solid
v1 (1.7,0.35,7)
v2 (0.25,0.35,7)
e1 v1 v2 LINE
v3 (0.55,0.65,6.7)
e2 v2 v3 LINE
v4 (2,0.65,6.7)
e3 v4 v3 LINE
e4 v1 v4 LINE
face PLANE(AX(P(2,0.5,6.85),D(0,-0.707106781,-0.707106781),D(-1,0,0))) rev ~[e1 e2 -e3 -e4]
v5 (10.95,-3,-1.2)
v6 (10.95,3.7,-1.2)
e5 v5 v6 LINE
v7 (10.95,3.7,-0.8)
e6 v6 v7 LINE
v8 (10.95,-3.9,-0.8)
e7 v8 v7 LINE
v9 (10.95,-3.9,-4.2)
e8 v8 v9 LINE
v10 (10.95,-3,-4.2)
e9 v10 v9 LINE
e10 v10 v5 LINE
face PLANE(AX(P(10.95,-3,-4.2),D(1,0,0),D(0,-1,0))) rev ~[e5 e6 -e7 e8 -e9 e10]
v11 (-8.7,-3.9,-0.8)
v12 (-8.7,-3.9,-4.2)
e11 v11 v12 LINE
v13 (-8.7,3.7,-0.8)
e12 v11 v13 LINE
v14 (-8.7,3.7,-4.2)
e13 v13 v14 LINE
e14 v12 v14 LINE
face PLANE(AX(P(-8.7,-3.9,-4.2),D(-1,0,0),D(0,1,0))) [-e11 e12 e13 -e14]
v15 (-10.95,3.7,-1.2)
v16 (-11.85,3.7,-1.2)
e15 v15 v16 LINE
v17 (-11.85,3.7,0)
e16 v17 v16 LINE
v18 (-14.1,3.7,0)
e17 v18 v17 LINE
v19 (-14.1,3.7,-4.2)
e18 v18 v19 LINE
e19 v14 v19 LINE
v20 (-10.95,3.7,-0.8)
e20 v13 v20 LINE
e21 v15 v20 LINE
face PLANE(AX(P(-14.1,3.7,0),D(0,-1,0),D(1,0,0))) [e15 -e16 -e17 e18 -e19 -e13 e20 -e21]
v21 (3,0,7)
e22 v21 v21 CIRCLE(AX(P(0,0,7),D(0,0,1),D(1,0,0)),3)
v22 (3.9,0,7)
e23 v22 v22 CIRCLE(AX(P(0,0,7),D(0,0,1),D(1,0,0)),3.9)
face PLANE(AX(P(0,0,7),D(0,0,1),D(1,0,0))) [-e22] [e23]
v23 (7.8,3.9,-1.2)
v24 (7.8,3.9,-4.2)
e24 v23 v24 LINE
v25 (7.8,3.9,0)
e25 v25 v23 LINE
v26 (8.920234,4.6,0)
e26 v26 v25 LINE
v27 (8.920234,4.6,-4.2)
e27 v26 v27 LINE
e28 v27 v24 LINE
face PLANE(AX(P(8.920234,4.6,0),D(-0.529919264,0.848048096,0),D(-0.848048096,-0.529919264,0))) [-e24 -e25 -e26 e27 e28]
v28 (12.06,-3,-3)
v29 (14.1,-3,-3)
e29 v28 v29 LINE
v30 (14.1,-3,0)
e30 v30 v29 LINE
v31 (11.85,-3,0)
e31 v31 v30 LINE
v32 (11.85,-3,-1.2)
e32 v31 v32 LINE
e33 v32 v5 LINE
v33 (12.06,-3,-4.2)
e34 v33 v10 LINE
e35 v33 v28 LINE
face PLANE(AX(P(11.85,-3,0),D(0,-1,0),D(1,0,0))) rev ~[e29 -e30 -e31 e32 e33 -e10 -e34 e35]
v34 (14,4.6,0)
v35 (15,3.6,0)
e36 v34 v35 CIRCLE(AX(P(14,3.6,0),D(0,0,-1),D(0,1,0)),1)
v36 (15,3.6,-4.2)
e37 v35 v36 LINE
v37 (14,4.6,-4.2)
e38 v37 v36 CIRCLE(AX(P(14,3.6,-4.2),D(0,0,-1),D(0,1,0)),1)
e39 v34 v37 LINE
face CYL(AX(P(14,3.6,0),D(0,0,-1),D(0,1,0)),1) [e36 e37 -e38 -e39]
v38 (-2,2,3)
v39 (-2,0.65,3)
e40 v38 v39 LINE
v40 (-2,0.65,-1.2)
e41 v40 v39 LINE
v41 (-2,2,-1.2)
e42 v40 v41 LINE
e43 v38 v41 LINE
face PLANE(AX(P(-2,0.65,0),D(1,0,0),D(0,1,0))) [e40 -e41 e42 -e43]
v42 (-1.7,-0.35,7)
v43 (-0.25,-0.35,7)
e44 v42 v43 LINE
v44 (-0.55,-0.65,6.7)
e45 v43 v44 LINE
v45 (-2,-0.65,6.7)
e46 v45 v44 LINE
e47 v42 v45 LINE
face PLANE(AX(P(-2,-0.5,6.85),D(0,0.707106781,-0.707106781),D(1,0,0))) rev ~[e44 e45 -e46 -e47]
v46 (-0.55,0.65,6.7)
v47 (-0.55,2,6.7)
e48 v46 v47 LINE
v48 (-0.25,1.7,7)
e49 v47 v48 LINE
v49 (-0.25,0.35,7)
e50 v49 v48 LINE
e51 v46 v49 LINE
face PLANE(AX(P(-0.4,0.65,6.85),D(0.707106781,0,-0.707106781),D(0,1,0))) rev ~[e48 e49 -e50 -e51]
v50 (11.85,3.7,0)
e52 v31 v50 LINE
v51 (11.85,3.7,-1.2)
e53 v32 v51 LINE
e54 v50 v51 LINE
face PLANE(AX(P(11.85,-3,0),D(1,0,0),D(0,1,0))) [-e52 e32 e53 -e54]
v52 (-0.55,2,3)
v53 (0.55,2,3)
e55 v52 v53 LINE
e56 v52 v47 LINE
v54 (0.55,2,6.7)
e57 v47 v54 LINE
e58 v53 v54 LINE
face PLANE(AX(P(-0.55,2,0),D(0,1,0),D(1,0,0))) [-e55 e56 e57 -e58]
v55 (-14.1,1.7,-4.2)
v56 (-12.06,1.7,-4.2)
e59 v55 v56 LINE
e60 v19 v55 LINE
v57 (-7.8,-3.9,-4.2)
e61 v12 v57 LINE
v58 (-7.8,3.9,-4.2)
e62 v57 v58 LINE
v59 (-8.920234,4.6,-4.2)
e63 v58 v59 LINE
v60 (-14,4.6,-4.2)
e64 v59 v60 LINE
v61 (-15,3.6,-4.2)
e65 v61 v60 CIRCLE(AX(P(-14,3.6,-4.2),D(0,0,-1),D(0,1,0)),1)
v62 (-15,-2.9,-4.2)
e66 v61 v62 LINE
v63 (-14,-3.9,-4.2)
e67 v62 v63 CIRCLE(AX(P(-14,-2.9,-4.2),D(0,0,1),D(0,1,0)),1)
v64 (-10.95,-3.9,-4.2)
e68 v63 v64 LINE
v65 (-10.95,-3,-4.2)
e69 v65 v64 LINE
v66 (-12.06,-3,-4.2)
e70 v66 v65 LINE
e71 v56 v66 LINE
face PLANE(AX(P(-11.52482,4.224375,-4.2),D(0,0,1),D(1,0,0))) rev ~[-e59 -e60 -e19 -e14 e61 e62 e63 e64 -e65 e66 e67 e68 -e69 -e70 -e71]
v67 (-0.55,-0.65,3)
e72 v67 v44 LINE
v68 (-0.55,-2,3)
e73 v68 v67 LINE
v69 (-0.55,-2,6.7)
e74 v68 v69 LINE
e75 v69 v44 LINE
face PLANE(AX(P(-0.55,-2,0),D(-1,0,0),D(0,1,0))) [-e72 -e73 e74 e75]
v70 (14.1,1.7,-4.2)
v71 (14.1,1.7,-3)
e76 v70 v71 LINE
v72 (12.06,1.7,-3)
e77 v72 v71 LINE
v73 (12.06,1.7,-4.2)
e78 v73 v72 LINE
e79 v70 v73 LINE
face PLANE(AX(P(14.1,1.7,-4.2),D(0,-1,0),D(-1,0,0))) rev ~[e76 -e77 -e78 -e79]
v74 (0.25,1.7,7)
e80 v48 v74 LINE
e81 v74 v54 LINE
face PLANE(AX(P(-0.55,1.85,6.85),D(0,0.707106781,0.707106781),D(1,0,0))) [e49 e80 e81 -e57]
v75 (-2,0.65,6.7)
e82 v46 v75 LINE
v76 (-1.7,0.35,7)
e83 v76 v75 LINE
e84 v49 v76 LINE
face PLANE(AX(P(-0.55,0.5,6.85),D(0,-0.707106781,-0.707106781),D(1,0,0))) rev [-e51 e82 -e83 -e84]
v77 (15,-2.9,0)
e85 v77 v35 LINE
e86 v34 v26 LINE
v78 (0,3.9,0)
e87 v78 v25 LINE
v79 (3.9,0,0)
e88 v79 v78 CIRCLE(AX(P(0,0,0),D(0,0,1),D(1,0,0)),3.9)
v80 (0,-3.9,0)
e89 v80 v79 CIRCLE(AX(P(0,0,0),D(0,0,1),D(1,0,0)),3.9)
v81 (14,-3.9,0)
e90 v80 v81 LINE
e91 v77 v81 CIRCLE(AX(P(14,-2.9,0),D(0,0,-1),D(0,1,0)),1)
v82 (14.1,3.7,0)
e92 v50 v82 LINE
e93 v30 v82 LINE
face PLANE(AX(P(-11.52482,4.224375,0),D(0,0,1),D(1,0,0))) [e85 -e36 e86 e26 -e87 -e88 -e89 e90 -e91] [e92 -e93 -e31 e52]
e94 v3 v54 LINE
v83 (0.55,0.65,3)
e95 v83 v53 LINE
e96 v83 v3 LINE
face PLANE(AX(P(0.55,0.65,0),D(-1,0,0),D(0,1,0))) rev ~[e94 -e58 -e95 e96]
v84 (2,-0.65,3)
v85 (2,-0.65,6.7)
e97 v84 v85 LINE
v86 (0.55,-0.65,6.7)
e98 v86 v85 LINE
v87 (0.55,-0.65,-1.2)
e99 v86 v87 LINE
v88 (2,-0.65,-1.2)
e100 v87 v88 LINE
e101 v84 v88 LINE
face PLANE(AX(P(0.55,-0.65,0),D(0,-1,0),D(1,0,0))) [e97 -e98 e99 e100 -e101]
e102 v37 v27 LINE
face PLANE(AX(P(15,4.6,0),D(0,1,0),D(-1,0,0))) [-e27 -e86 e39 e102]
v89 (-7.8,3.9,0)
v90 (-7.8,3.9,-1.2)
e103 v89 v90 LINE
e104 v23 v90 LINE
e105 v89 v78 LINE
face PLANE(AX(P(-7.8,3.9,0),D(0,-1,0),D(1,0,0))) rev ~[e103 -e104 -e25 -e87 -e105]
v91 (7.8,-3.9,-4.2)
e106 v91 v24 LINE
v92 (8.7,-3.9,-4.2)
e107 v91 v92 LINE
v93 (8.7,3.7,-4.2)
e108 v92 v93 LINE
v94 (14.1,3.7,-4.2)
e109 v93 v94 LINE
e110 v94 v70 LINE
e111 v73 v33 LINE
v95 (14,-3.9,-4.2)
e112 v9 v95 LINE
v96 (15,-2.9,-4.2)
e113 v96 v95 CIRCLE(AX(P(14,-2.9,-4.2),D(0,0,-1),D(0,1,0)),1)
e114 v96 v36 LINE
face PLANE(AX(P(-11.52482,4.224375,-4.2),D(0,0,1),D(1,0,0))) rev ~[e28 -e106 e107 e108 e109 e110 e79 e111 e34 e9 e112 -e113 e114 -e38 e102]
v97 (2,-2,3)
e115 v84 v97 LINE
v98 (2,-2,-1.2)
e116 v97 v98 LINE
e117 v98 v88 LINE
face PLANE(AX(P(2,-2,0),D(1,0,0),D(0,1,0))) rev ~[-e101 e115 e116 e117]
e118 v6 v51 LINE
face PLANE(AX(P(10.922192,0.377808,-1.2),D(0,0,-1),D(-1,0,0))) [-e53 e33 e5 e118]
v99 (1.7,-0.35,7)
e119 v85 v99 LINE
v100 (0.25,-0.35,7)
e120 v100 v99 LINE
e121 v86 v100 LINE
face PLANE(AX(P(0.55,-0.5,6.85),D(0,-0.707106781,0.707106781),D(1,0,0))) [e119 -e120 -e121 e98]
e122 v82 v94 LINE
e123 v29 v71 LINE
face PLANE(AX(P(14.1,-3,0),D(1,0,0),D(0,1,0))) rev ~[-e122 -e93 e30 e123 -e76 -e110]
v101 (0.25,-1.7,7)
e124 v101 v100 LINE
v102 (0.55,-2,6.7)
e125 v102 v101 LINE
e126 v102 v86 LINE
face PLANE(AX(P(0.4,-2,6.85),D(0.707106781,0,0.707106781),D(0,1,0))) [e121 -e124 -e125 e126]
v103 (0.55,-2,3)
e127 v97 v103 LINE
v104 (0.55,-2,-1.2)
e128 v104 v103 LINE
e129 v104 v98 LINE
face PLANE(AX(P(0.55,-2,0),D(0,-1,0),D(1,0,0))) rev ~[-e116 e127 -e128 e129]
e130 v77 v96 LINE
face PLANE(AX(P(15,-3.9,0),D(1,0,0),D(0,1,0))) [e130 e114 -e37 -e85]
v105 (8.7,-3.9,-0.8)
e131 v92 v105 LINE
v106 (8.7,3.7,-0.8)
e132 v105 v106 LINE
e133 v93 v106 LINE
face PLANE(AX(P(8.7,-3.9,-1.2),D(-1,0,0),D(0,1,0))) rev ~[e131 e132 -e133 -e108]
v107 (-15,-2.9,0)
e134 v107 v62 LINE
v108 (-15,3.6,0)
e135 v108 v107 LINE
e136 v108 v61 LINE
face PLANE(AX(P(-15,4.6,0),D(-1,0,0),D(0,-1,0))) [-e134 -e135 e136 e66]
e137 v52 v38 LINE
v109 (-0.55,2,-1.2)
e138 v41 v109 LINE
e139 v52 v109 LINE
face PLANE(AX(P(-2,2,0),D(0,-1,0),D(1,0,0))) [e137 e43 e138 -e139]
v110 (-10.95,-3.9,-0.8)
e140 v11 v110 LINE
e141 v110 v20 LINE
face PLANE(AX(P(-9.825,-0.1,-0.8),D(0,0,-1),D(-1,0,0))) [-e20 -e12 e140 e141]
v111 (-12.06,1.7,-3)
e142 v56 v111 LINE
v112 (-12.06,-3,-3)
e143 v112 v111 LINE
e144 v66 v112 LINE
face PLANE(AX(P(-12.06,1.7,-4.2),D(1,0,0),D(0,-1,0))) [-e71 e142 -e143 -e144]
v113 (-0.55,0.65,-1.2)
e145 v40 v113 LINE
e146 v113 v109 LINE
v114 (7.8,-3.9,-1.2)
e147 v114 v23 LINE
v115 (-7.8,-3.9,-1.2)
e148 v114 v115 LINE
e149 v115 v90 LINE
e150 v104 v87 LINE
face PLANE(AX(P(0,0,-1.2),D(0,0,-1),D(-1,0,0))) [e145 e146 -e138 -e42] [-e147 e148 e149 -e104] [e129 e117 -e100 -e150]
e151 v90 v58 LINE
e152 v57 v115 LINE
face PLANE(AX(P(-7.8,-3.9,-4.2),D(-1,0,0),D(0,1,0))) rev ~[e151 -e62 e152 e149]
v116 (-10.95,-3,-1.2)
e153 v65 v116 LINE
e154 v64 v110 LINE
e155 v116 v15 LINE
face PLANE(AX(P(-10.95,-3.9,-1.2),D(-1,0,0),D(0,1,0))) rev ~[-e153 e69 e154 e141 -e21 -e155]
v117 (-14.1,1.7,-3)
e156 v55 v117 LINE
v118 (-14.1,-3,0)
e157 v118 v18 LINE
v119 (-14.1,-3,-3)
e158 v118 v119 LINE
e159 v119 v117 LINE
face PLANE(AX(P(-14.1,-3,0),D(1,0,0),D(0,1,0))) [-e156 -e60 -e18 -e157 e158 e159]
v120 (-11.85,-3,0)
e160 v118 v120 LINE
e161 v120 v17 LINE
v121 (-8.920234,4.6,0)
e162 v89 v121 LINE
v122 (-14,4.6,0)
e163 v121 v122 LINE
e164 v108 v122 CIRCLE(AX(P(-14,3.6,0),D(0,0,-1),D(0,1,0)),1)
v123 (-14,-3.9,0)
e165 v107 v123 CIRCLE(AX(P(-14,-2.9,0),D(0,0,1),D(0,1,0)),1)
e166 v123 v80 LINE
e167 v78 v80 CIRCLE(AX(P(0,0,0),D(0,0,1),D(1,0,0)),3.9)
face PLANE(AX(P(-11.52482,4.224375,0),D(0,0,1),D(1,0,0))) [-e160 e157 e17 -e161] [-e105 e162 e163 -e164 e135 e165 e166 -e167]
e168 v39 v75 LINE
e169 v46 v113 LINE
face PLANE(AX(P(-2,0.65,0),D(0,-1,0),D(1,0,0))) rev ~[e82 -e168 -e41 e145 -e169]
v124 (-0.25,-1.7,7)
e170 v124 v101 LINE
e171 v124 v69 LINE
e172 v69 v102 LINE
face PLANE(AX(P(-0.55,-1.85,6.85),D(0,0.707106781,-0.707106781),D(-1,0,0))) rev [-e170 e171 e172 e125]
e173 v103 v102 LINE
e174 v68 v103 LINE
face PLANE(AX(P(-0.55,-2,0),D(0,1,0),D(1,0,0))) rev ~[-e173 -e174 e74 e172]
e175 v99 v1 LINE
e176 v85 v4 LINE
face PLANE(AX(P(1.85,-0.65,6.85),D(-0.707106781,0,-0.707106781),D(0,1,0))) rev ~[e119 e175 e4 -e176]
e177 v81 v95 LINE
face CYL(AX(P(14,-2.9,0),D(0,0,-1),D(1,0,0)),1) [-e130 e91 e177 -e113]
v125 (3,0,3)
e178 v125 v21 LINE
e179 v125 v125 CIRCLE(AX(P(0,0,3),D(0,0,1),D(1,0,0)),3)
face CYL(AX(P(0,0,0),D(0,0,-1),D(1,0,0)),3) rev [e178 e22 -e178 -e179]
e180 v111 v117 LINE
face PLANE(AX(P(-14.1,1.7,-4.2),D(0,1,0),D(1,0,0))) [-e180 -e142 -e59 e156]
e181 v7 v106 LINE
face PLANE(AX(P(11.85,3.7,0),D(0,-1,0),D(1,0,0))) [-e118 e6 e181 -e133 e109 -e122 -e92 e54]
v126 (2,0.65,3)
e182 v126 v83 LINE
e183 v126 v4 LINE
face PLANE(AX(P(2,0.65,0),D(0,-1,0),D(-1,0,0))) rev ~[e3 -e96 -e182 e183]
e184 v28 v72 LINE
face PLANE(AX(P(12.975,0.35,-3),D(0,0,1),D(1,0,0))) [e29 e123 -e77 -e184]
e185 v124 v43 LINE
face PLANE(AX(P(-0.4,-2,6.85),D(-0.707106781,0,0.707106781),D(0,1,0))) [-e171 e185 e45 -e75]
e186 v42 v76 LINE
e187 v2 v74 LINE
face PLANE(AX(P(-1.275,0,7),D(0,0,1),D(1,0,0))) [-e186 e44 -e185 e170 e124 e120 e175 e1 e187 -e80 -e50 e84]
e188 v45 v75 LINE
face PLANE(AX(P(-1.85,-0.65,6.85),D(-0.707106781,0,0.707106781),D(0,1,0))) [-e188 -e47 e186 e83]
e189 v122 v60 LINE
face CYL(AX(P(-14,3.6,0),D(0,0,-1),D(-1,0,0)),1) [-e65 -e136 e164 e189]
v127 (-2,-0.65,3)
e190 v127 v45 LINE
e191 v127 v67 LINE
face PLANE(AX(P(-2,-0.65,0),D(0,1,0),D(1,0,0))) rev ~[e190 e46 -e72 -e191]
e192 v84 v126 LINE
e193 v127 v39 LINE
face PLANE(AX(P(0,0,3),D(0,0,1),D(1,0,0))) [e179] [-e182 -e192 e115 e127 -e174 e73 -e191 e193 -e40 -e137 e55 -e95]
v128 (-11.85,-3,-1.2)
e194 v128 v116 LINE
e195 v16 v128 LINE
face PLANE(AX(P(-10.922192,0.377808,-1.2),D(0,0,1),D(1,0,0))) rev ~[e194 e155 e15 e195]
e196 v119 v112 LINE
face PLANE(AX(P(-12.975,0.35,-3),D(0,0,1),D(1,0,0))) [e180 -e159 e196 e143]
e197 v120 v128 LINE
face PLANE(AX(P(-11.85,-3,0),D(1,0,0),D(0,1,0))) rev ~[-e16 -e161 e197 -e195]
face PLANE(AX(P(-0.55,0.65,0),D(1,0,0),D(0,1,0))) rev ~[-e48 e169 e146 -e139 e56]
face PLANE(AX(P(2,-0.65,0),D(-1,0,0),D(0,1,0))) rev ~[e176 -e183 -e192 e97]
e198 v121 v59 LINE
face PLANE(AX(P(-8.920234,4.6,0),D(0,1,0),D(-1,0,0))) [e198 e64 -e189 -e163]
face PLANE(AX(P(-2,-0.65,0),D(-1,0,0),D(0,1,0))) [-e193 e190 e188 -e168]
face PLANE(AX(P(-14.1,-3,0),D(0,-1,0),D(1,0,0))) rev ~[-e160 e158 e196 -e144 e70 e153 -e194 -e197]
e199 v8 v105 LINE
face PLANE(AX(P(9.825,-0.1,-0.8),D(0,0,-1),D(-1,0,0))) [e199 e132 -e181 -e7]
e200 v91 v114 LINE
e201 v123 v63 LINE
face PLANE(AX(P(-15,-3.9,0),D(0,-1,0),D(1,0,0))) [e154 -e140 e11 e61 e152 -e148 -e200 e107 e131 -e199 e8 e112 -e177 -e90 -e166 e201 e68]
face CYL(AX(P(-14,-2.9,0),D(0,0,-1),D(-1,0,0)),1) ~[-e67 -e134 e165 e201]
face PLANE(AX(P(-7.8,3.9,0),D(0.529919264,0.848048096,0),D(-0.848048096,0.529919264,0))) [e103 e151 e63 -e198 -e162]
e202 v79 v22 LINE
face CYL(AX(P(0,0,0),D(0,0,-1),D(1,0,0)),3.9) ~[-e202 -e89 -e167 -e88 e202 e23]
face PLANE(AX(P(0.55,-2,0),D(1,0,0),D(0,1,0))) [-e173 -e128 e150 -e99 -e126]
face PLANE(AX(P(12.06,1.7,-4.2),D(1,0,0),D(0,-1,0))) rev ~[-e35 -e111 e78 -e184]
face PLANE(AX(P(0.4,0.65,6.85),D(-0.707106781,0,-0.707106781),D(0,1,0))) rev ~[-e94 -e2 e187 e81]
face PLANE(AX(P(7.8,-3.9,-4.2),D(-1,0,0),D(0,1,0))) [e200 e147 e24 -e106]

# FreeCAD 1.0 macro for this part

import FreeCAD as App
import Part
import Sketcher
from FreeCAD import Vector
Q = App.Units.Quantity


def edges_at(feature, points):
    """Names of the edges that pass closest to the given points."""
    edges = feature.Shape.Edges
    near = lambda p: min(range(len(edges)), key=lambda i: edges[i].distToShape(Part.Vertex(*p))[0])
    return sorted({f"Edge{near(p) + 1}" for p in points})

doc = App.newDocument("Part")
params = doc.addObject("Spreadsheet::Sheet", "Params")
for row, (alias, value) in enumerate([
    ("sketch1_diameter", "6 mm"),
    ("sketch1_diameter2", "7.8 mm"),
    ("sketch1_width", "1.1 mm"),
    ("sketch1_height", "1.3 mm"),
    ("pad1_length", "7 mm"),
    ("sketch2_diameter", "6 mm"),
    ("pad2_length", "3 mm"),
    ("sketch3_width", "30 mm"),
    ("sketch3_width2", "15.6 mm"),
    ("sketch3_height", "8.5 mm"),
    ("pad3_length", "4.2 mm"),
    ("sketch4_width", "1.45 mm"),
    ("sketch4_height", "1.35 mm"),
    ("sketch5_width", "15.6 mm"),
    ("sketch5_height", "7.8 mm"),
    ("pocket2_length", "3 mm"),
    ("sketch6_height", "6.7 mm"),
    ("sketch6_width", "2.25 mm"),
    ("pocket3_length", "3 mm"),
    ("sketch7_height", "2 mm"),
    ("sketch7_width", "5.4 mm"),
    ("sketch7_height2", "4.7 mm"),
    ("sketch7_height3", "7.6 mm"),
    ("sketch7_width2", "1.11 mm"),
    ("pocket4_length", "3 mm"),
    ("sketch8_height", "7.6 mm"),
    ("sketch8_width", "2.25 mm"),
    ("pocket5_length", "0.4 mm"),
    ("fillet_radius", "1 mm"),
    ("chamfer_size", "0.3 mm"),
], start=1):
    params.set(f"A{row}", alias)
    params.set(f"B{row}", "=" + value)
    params.setAlias(f"B{row}", alias)

body = doc.addObject("PartDesign::Body", "Body")
body.AllowCompound = True

sketch1 = body.newObject("Sketcher::SketchObject", "Sketch")
sketch1.AttachmentSupport = (doc.getObject("XY_Plane"), [""])
sketch1.MapMode = "FlatFace"
sketch1.addGeometry(Part.Circle(Vector(0, 0, 0), Vector(0, 0, 1), 3.9), False)
sketch1.addGeometry(Part.Circle(Vector(0, 0, 0), Vector(0, 0, 1), 3), False)
sketch1.addGeometry(Part.LineSegment(Vector(-2, 0.7, 0), Vector(-2, -0.7, 0)), False)
sketch1.addGeometry(Part.LineSegment(Vector(-2, -0.7, 0), Vector(-0.6, -0.7, 0)), False)
sketch1.addGeometry(Part.LineSegment(Vector(-0.6, -0.7, 0), Vector(-0.6, -2, 0)), False)
sketch1.addGeometry(Part.LineSegment(Vector(-0.6, -2, 0), Vector(0.6, -2, 0)), False)
sketch1.addGeometry(Part.LineSegment(Vector(0.6, -2, 0), Vector(0.6, -0.7, 0)), False)
sketch1.addGeometry(Part.LineSegment(Vector(0.6, -0.7, 0), Vector(2, -0.7, 0)), False)
sketch1.addGeometry(Part.LineSegment(Vector(2, -0.7, 0), Vector(2, 0.7, 0)), False)
sketch1.addGeometry(Part.LineSegment(Vector(2, 0.7, 0), Vector(0.6, 0.7, 0)), False)
sketch1.addGeometry(Part.LineSegment(Vector(0.6, 0.7, 0), Vector(0.6, 2, 0)), False)
sketch1.addGeometry(Part.LineSegment(Vector(0.6, 2, 0), Vector(-0.6, 2, 0)), False)
sketch1.addGeometry(Part.LineSegment(Vector(-0.6, 2, 0), Vector(-0.6, 0.7, 0)), False)
sketch1.addGeometry(Part.LineSegment(Vector(-0.6, 0.7, 0), Vector(-2, 0.7, 0)), False)
sketch1.addConstraint(Sketcher.Constraint("Coincident", 2, 2, 3, 1))
sketch1.addConstraint(Sketcher.Constraint("Coincident", 3, 2, 4, 1))
sketch1.addConstraint(Sketcher.Constraint("Coincident", 4, 2, 5, 1))
sketch1.addConstraint(Sketcher.Constraint("Coincident", 5, 2, 6, 1))
sketch1.addConstraint(Sketcher.Constraint("Coincident", 6, 2, 7, 1))
sketch1.addConstraint(Sketcher.Constraint("Coincident", 7, 2, 8, 1))
sketch1.addConstraint(Sketcher.Constraint("Coincident", 8, 2, 9, 1))
sketch1.addConstraint(Sketcher.Constraint("Coincident", 9, 2, 10, 1))
sketch1.addConstraint(Sketcher.Constraint("Coincident", 10, 2, 11, 1))
sketch1.addConstraint(Sketcher.Constraint("Coincident", 11, 2, 12, 1))
sketch1.addConstraint(Sketcher.Constraint("Coincident", 12, 2, 13, 1))
sketch1.addConstraint(Sketcher.Constraint("Coincident", 13, 2, 2, 1))
sketch1.addConstraint(Sketcher.Constraint("Vertical", 2))
sketch1.addConstraint(Sketcher.Constraint("Horizontal", 3))
sketch1.addConstraint(Sketcher.Constraint("Vertical", 4))
sketch1.addConstraint(Sketcher.Constraint("Horizontal", 5))
sketch1.addConstraint(Sketcher.Constraint("Vertical", 6))
sketch1.addConstraint(Sketcher.Constraint("Horizontal", 7))
sketch1.addConstraint(Sketcher.Constraint("Vertical", 8))
sketch1.addConstraint(Sketcher.Constraint("Horizontal", 9))
sketch1.addConstraint(Sketcher.Constraint("Vertical", 10))
sketch1.addConstraint(Sketcher.Constraint("Horizontal", 11))
sketch1.addConstraint(Sketcher.Constraint("Vertical", 12))
sketch1.addConstraint(Sketcher.Constraint("Horizontal", 13))
sketch1.addConstraint(Sketcher.Constraint("Coincident", 0, 3, -1, 1))
sketch1.addConstraint(Sketcher.Constraint("Coincident", 1, 3, -1, 1))
sketch1.addConstraint(Sketcher.Constraint("Symmetric", 2, 2, 8, 2, -1, 1))
sketch1.addConstraint(Sketcher.Constraint("Symmetric", 4, 2, 10, 2, -1, 1))
sketch1.addConstraint(Sketcher.Constraint("Symmetric", 6, 2, 12, 2, -1, 1))
sketch1.addConstraint(Sketcher.Constraint("Symmetric", 3, 2, 6, 2, -2))
sketch1.addConstraint(Sketcher.Constraint("Diameter", 1, Q("6 mm")))
sketch1.addConstraint(Sketcher.Constraint("Diameter", 0, Q("7.8 mm")))
sketch1.addConstraint(Sketcher.Constraint("DistanceX", 5, 1, 5, 2, Q("1.1 mm")))
sketch1.addConstraint(Sketcher.Constraint("DistanceY", 2, 2, 2, 1, Q("1.3 mm")))
sketch1.addConstraint(Sketcher.Constraint("DistanceX", 2, 2, -1, 1, Q("2 mm")))
sketch1.addConstraint(Sketcher.Constraint("DistanceY", 4, 2, -1, 1, Q("2 mm")))
sketch1.setExpression("Constraints[30]", "Params.sketch1_diameter")
sketch1.setExpression("Constraints[31]", "Params.sketch1_diameter2")
sketch1.setExpression("Constraints[32]", "Params.sketch1_width")
sketch1.setExpression("Constraints[33]", "Params.sketch1_height")
pad1 = body.newObject("PartDesign::Pad", "Pad")
pad1.Profile = sketch1
pad1.setExpression("Length", "Params.pad1_length")

sketch2 = body.newObject("Sketcher::SketchObject", "Sketch001")
sketch2.AttachmentSupport = (doc.getObject("XY_Plane"), [""])
sketch2.MapMode = "FlatFace"
sketch2.addGeometry(Part.Circle(Vector(0, 0, 0), Vector(0, 0, 1), 3), False)
sketch2.addConstraint(Sketcher.Constraint("Coincident", 0, 3, -1, 1))
sketch2.addConstraint(Sketcher.Constraint("Diameter", 0, Q("6 mm")))
sketch2.setExpression("Constraints[1]", "Params.sketch2_diameter")
pad2 = body.newObject("PartDesign::Pad", "Pad001")
pad2.Profile = sketch2
pad2.setExpression("Length", "Params.pad2_length")

sketch3 = body.newObject("Sketcher::SketchObject", "Sketch002")
sketch3.AttachmentSupport = (doc.getObject("XY_Plane"), [""])
sketch3.MapMode = "FlatFace"
sketch3.addGeometry(Part.LineSegment(Vector(-15, 4.6, 0), Vector(-15, -3.9, 0)), False)
sketch3.addGeometry(Part.LineSegment(Vector(-15, -3.9, 0), Vector(15, -3.9, 0)), False)
sketch3.addGeometry(Part.LineSegment(Vector(15, -3.9, 0), Vector(15, 4.6, 0)), False)
sketch3.addGeometry(Part.LineSegment(Vector(15, 4.6, 0), Vector(8.9, 4.6, 0)), False)
sketch3.addGeometry(Part.LineSegment(Vector(8.9, 4.6, 0), Vector(7.8, 3.9, 0)), False)
sketch3.addGeometry(Part.LineSegment(Vector(7.8, 3.9, 0), Vector(-7.8, 3.9, 0)), False)
sketch3.addGeometry(Part.LineSegment(Vector(-7.8, 3.9, 0), Vector(-8.9, 4.6, 0)), False)
sketch3.addGeometry(Part.LineSegment(Vector(-8.9, 4.6, 0), Vector(-15, 4.6, 0)), False)
sketch3.addConstraint(Sketcher.Constraint("Coincident", 0, 2, 1, 1))
sketch3.addConstraint(Sketcher.Constraint("Coincident", 1, 2, 2, 1))
sketch3.addConstraint(Sketcher.Constraint("Coincident", 2, 2, 3, 1))
sketch3.addConstraint(Sketcher.Constraint("Coincident", 3, 2, 4, 1))
sketch3.addConstraint(Sketcher.Constraint("Coincident", 4, 2, 5, 1))
sketch3.addConstraint(Sketcher.Constraint("Coincident", 5, 2, 6, 1))
sketch3.addConstraint(Sketcher.Constraint("Coincident", 6, 2, 7, 1))
sketch3.addConstraint(Sketcher.Constraint("Coincident", 7, 2, 0, 1))
sketch3.addConstraint(Sketcher.Constraint("Vertical", 0))
sketch3.addConstraint(Sketcher.Constraint("Horizontal", 1))
sketch3.addConstraint(Sketcher.Constraint("Vertical", 2))
sketch3.addConstraint(Sketcher.Constraint("Horizontal", 3))
sketch3.addConstraint(Sketcher.Constraint("Horizontal", 5))
sketch3.addConstraint(Sketcher.Constraint("Horizontal", 7))
sketch3.addConstraint(Sketcher.Constraint("Symmetric", 3, 2, 6, 2, -2))
sketch3.addConstraint(Sketcher.Constraint("Equal", 3, 7))
sketch3.addConstraint(Sketcher.Constraint("Equal", 4, 6))
sketch3.addConstraint(Sketcher.Constraint("DistanceX", 1, 1, 1, 2, Q("30 mm")))
sketch3.addConstraint(Sketcher.Constraint("Angle", 4, Q("-148 deg")))
sketch3.addConstraint(Sketcher.Constraint("DistanceX", 5, 2, 5, 1, Q("15.6 mm")))
sketch3.addConstraint(Sketcher.Constraint("DistanceY", 0, 2, 0, 1, Q("8.5 mm")))
sketch3.addConstraint(Sketcher.Constraint("DistanceY", 0, 2, -1, 1, Q("3.9 mm")))
sketch3.addConstraint(Sketcher.Constraint("DistanceY", -1, 1, 4, 2, Q("3.9 mm")))
sketch3.setExpression("Constraints[17]", "Params.sketch3_width")
sketch3.setExpression("Constraints[19]", "Params.sketch3_width2")
sketch3.setExpression("Constraints[20]", "Params.sketch3_height")
pad3 = body.newObject("PartDesign::Pad", "Pad002")
pad3.Profile = sketch3
pad3.setExpression("Length", "Params.pad3_length")
pad3.Reversed = True

sketch4 = body.newObject("Sketcher::SketchObject", "Sketch003")
sketch4.AttachmentSupport = (doc.getObject("XY_Plane"), [""])
sketch4.MapMode = "FlatFace"
sketch4.addGeometry(Part.LineSegment(Vector(-2, 2, 0), Vector(-2, 0.7, 0)), False)
sketch4.addGeometry(Part.LineSegment(Vector(-2, 0.7, 0), Vector(-0.6, 0.7, 0)), False)
sketch4.addGeometry(Part.LineSegment(Vector(-0.6, 0.7, 0), Vector(-0.6, 2, 0)), False)
sketch4.addGeometry(Part.LineSegment(Vector(-0.6, 2, 0), Vector(-2, 2, 0)), False)
sketch4.addGeometry(Part.LineSegment(Vector(0.6, -0.7, 0), Vector(0.6, -2, 0)), False)
sketch4.addGeometry(Part.LineSegment(Vector(0.6, -2, 0), Vector(2, -2, 0)), False)
sketch4.addGeometry(Part.LineSegment(Vector(2, -2, 0), Vector(2, -0.7, 0)), False)
sketch4.addGeometry(Part.LineSegment(Vector(2, -0.7, 0), Vector(0.6, -0.7, 0)), False)
sketch4.addConstraint(Sketcher.Constraint("Coincident", 0, 2, 1, 1))
sketch4.addConstraint(Sketcher.Constraint("Coincident", 1, 2, 2, 1))
sketch4.addConstraint(Sketcher.Constraint("Coincident", 2, 2, 3, 1))
sketch4.addConstraint(Sketcher.Constraint("Coincident", 3, 2, 0, 1))
sketch4.addConstraint(Sketcher.Constraint("Coincident", 4, 2, 5, 1))
sketch4.addConstraint(Sketcher.Constraint("Coincident", 5, 2, 6, 1))
sketch4.addConstraint(Sketcher.Constraint("Coincident", 6, 2, 7, 1))
sketch4.addConstraint(Sketcher.Constraint("Coincident", 7, 2, 4, 1))
sketch4.addConstraint(Sketcher.Constraint("Vertical", 0))
sketch4.addConstraint(Sketcher.Constraint("Horizontal", 1))
sketch4.addConstraint(Sketcher.Constraint("Vertical", 2))
sketch4.addConstraint(Sketcher.Constraint("Horizontal", 3))
sketch4.addConstraint(Sketcher.Constraint("Vertical", 4))
sketch4.addConstraint(Sketcher.Constraint("Horizontal", 5))
sketch4.addConstraint(Sketcher.Constraint("Vertical", 6))
sketch4.addConstraint(Sketcher.Constraint("Horizontal", 7))
sketch4.addConstraint(Sketcher.Constraint("Symmetric", 2, 2, 4, 2, -1, 1))
sketch4.addConstraint(Sketcher.Constraint("Symmetric", 0, 2, 6, 2, -1, 1))
sketch4.addConstraint(Sketcher.Constraint("DistanceX", 0, 2, -1, 1, Q("2 mm")))
sketch4.addConstraint(Sketcher.Constraint("DistanceY", -1, 1, 2, 2, Q("2 mm")))
sketch4.addConstraint(Sketcher.Constraint("DistanceX", 1, 1, 1, 2, Q("1.45 mm")))
sketch4.addConstraint(Sketcher.Constraint("DistanceY", 0, 2, 0, 1, Q("1.35 mm")))
sketch4.setExpression("Constraints[20]", "Params.sketch4_width")
sketch4.setExpression("Constraints[21]", "Params.sketch4_height")
pocket1 = body.newObject("PartDesign::Pocket", "Pocket")
pocket1.Profile = sketch4
pocket1.Type = "ThroughAll"
pocket1.Midplane = True

sketch5 = body.newObject("Sketcher::SketchObject", "Sketch004")
sketch5.AttachmentSupport = (doc.getObject("XY_Plane"), [""])
sketch5.MapMode = "FlatFace"
sketch5.AttachmentOffset = App.Placement(Vector(0, 0, -4.2), App.Rotation())
sketch5.addGeometry(Part.LineSegment(Vector(8, 4, 0), Vector(8, -4, 0)), False)
sketch5.addGeometry(Part.LineSegment(Vector(8, -4, 0), Vector(-8, -4, 0)), False)
sketch5.addGeometry(Part.LineSegment(Vector(-8, -4, 0), Vector(-8, 4, 0)), False)
sketch5.addGeometry(Part.LineSegment(Vector(-8, 4, 0), Vector(8, 4, 0)), False)
sketch5.addConstraint(Sketcher.Constraint("Coincident", 0, 2, 1, 1))
sketch5.addConstraint(Sketcher.Constraint("Coincident", 1, 2, 2, 1))
sketch5.addConstraint(Sketcher.Constraint("Coincident", 2, 2, 3, 1))
sketch5.addConstraint(Sketcher.Constraint("Coincident", 3, 2, 0, 1))
sketch5.addConstraint(Sketcher.Constraint("Vertical", 0))
sketch5.addConstraint(Sketcher.Constraint("Horizontal", 1))
sketch5.addConstraint(Sketcher.Constraint("Vertical", 2))
sketch5.addConstraint(Sketcher.Constraint("Horizontal", 3))
sketch5.addConstraint(Sketcher.Constraint("Symmetric", 0, 2, 2, 2, -1, 1))
sketch5.addConstraint(Sketcher.Constraint("DistanceX", 1, 2, 1, 1, Q("15.6 mm")))
sketch5.addConstraint(Sketcher.Constraint("DistanceY", 0, 2, 0, 1, Q("7.8 mm")))
sketch5.setExpression("Constraints[9]", "Params.sketch5_width")
sketch5.setExpression("Constraints[10]", "Params.sketch5_height")
pocket2 = body.newObject("PartDesign::Pocket", "Pocket001")
pocket2.Profile = sketch5
pocket2.setExpression("Length", "Params.pocket2_length")
pocket2.Reversed = True

sketch6 = body.newObject("Sketcher::SketchObject", "Sketch005")
sketch6.AttachmentSupport = (doc.getObject("XY_Plane"), [""])
sketch6.MapMode = "FlatFace"
sketch6.addGeometry(Part.LineSegment(Vector(11.8, 3.7, 0), Vector(11.8, -3, 0)), False)
sketch6.addGeometry(Part.LineSegment(Vector(11.8, -3, 0), Vector(14.1, -3, 0)), False)
sketch6.addGeometry(Part.LineSegment(Vector(14.1, -3, 0), Vector(14.1, 3.7, 0)), False)
sketch6.addGeometry(Part.LineSegment(Vector(14.1, 3.7, 0), Vector(11.8, 3.7, 0)), False)
sketch6.addGeometry(Part.LineSegment(Vector(-14.1, 3.7, 0), Vector(-14.1, -3, 0)), False)
sketch6.addGeometry(Part.LineSegment(Vector(-14.1, -3, 0), Vector(-11.8, -3, 0)), False)
sketch6.addGeometry(Part.LineSegment(Vector(-11.8, -3, 0), Vector(-11.8, 3.7, 0)), False)
sketch6.addGeometry(Part.LineSegment(Vector(-11.8, 3.7, 0), Vector(-14.1, 3.7, 0)), False)
sketch6.addConstraint(Sketcher.Constraint("Coincident", 0, 2, 1, 1))
sketch6.addConstraint(Sketcher.Constraint("Coincident", 1, 2, 2, 1))
sketch6.addConstraint(Sketcher.Constraint("Coincident", 2, 2, 3, 1))
sketch6.addConstraint(Sketcher.Constraint("Coincident", 3, 2, 0, 1))
sketch6.addConstraint(Sketcher.Constraint("Coincident", 4, 2, 5, 1))
sketch6.addConstraint(Sketcher.Constraint("Coincident", 5, 2, 6, 1))
sketch6.addConstraint(Sketcher.Constraint("Coincident", 6, 2, 7, 1))
sketch6.addConstraint(Sketcher.Constraint("Coincident", 7, 2, 4, 1))
sketch6.addConstraint(Sketcher.Constraint("Vertical", 0))
sketch6.addConstraint(Sketcher.Constraint("Horizontal", 1))
sketch6.addConstraint(Sketcher.Constraint("Vertical", 2))
sketch6.addConstraint(Sketcher.Constraint("Horizontal", 3))
sketch6.addConstraint(Sketcher.Constraint("Vertical", 4))
sketch6.addConstraint(Sketcher.Constraint("Horizontal", 5))
sketch6.addConstraint(Sketcher.Constraint("Vertical", 6))
sketch6.addConstraint(Sketcher.Constraint("Horizontal", 7))
sketch6.addConstraint(Sketcher.Constraint("Symmetric", 1, 2, 4, 2, -2))
sketch6.addConstraint(Sketcher.Constraint("Symmetric", 3, 2, 6, 2, -2))
sketch6.addConstraint(Sketcher.Constraint("DistanceY", 0, 2, 0, 1, Q("6.7 mm")))
sketch6.addConstraint(Sketcher.Constraint("DistanceY", 0, 2, -1, 1, Q("3 mm")))
sketch6.addConstraint(Sketcher.Constraint("DistanceX", 1, 1, 1, 2, Q("2.25 mm")))
sketch6.addConstraint(Sketcher.Constraint("DistanceX", -1, 1, 1, 2, Q("14.1 mm")))
sketch6.setExpression("Constraints[18]", "Params.sketch6_height")
sketch6.setExpression("Constraints[20]", "Params.sketch6_width")
pocket3 = body.newObject("PartDesign::Pocket", "Pocket002")
pocket3.Profile = sketch6
pocket3.setExpression("Length", "Params.pocket3_length")

sketch7 = body.newObject("Sketcher::SketchObject", "Sketch006")
sketch7.AttachmentSupport = (doc.getObject("XY_Plane"), [""])
sketch7.MapMode = "FlatFace"
sketch7.AttachmentOffset = App.Placement(Vector(0, 0, -4.2), App.Rotation())
sketch7.addGeometry(Part.LineSegment(Vector(-10.9, -3, 0), Vector(-12.1, -3, 0)), False)
sketch7.addGeometry(Part.LineSegment(Vector(-12.1, -3, 0), Vector(-12.1, 1.7, 0)), False)
sketch7.addGeometry(Part.LineSegment(Vector(-12.1, 1.7, 0), Vector(-14.1, 1.7, 0)), False)
sketch7.addGeometry(Part.LineSegment(Vector(-14.1, 1.7, 0), Vector(-14.1, 3.7, 0)), False)
sketch7.addGeometry(Part.LineSegment(Vector(-14.1, 3.7, 0), Vector(-8.7, 3.7, 0)), False)
sketch7.addGeometry(Part.LineSegment(Vector(-8.7, 3.7, 0), Vector(-8.7, -3.9, 0)), False)
sketch7.addGeometry(Part.LineSegment(Vector(-8.7, -3.9, 0), Vector(-10.9, -3.9, 0)), False)
sketch7.addGeometry(Part.LineSegment(Vector(-10.9, -3.9, 0), Vector(-10.9, -3, 0)), False)
sketch7.addGeometry(Part.LineSegment(Vector(8.7, 3.7, 0), Vector(14.1, 3.7, 0)), False)
sketch7.addGeometry(Part.LineSegment(Vector(14.1, 3.7, 0), Vector(14.1, 1.7, 0)), False)
sketch7.addGeometry(Part.LineSegment(Vector(14.1, 1.7, 0), Vector(12.1, 1.7, 0)), False)
sketch7.addGeometry(Part.LineSegment(Vector(12.1, 1.7, 0), Vector(12.1, -3, 0)), False)
sketch7.addGeometry(Part.LineSegment(Vector(12.1, -3, 0), Vector(10.9, -3, 0)), False)
sketch7.addGeometry(Part.LineSegment(Vector(10.9, -3, 0), Vector(10.9, -3.9, 0)), False)
sketch7.addGeometry(Part.LineSegment(Vector(10.9, -3.9, 0), Vector(8.7, -3.9, 0)), False)
sketch7.addGeometry(Part.LineSegment(Vector(8.7, -3.9, 0), Vector(8.7, 3.7, 0)), False)
sketch7.addConstraint(Sketcher.Constraint("Coincident", 0, 2, 1, 1))
sketch7.addConstraint(Sketcher.Constraint("Coincident", 1, 2, 2, 1))
sketch7.addConstraint(Sketcher.Constraint("Coincident", 2, 2, 3, 1))
sketch7.addConstraint(Sketcher.Constraint("Coincident", 3, 2, 4, 1))
sketch7.addConstraint(Sketcher.Constraint("Coincident", 4, 2, 5, 1))
sketch7.addConstraint(Sketcher.Constraint("Coincident", 5, 2, 6, 1))
sketch7.addConstraint(Sketcher.Constraint("Coincident", 6, 2, 7, 1))
sketch7.addConstraint(Sketcher.Constraint("Coincident", 7, 2, 0, 1))
sketch7.addConstraint(Sketcher.Constraint("Coincident", 8, 2, 9, 1))
sketch7.addConstraint(Sketcher.Constraint("Coincident", 9, 2, 10, 1))
sketch7.addConstraint(Sketcher.Constraint("Coincident", 10, 2, 11, 1))
sketch7.addConstraint(Sketcher.Constraint("Coincident", 11, 2, 12, 1))
sketch7.addConstraint(Sketcher.Constraint("Coincident", 12, 2, 13, 1))
sketch7.addConstraint(Sketcher.Constraint("Coincident", 13, 2, 14, 1))
sketch7.addConstraint(Sketcher.Constraint("Coincident", 14, 2, 15, 1))
sketch7.addConstraint(Sketcher.Constraint("Coincident", 15, 2, 8, 1))
sketch7.addConstraint(Sketcher.Constraint("Horizontal", 0))
sketch7.addConstraint(Sketcher.Constraint("Vertical", 1))
sketch7.addConstraint(Sketcher.Constraint("Horizontal", 2))
sketch7.addConstraint(Sketcher.Constraint("Vertical", 3))
sketch7.addConstraint(Sketcher.Constraint("Horizontal", 4))
sketch7.addConstraint(Sketcher.Constraint("Vertical", 5))
sketch7.addConstraint(Sketcher.Constraint("Horizontal", 6))
sketch7.addConstraint(Sketcher.Constraint("Vertical", 7))
sketch7.addConstraint(Sketcher.Constraint("Horizontal", 8))
sketch7.addConstraint(Sketcher.Constraint("Vertical", 9))
sketch7.addConstraint(Sketcher.Constraint("Horizontal", 10))
sketch7.addConstraint(Sketcher.Constraint("Vertical", 11))
sketch7.addConstraint(Sketcher.Constraint("Horizontal", 12))
sketch7.addConstraint(Sketcher.Constraint("Vertical", 13))
sketch7.addConstraint(Sketcher.Constraint("Horizontal", 14))
sketch7.addConstraint(Sketcher.Constraint("Vertical", 15))
sketch7.addConstraint(Sketcher.Constraint("Symmetric", 3, 2, 8, 2, -2))
sketch7.addConstraint(Sketcher.Constraint("Symmetric", 1, 2, 10, 2, -2))
sketch7.addConstraint(Sketcher.Constraint("Symmetric", 7, 2, 12, 2, -2))
sketch7.addConstraint(Sketcher.Constraint("Symmetric", 5, 2, 14, 2, -2))
sketch7.addConstraint(Sketcher.Constraint("DistanceY", 3, 1, 3, 2, Q("2 mm")))
sketch7.addConstraint(Sketcher.Constraint("DistanceX", 4, 1, 4, 2, Q("5.4 mm")))
sketch7.addConstraint(Sketcher.Constraint("DistanceY", 1, 1, 1, 2, Q("4.7 mm")))
sketch7.addConstraint(Sketcher.Constraint("DistanceY", 5, 2, 5, 1, Q("7.6 mm")))
sketch7.addConstraint(Sketcher.Constraint("DistanceY", 0, 2, -1, 1, Q("3 mm")))
sketch7.addConstraint(Sketcher.Constraint("DistanceX", 0, 2, 0, 1, Q("1.11 mm")))
sketch7.addConstraint(Sketcher.Constraint("DistanceX", 2, 2, 2, 1, Q("2.04 mm")))
sketch7.addConstraint(Sketcher.Constraint("DistanceX", 2, 2, -1, 1, Q("14.1 mm")))
sketch7.setExpression("Constraints[36]", "Params.sketch7_height")
sketch7.setExpression("Constraints[37]", "Params.sketch7_width")
sketch7.setExpression("Constraints[38]", "Params.sketch7_height2")
sketch7.setExpression("Constraints[39]", "Params.sketch7_height3")
sketch7.setExpression("Constraints[41]", "Params.sketch7_width2")
pocket4 = body.newObject("PartDesign::Pocket", "Pocket003")
pocket4.Profile = sketch7
pocket4.setExpression("Length", "Params.pocket4_length")
pocket4.Reversed = True

sketch8 = body.newObject("Sketcher::SketchObject", "Sketch007")
sketch8.AttachmentSupport = (doc.getObject("XY_Plane"), [""])
sketch8.MapMode = "FlatFace"
sketch8.AttachmentOffset = App.Placement(Vector(0, 0, -1.2), App.Rotation())
sketch8.addGeometry(Part.LineSegment(Vector(10.9, 3.7, 0), Vector(10.9, -3.9, 0)), False)
sketch8.addGeometry(Part.LineSegment(Vector(10.9, -3.9, 0), Vector(8.7, -3.9, 0)), False)
sketch8.addGeometry(Part.LineSegment(Vector(8.7, -3.9, 0), Vector(8.7, 3.7, 0)), False)
sketch8.addGeometry(Part.LineSegment(Vector(8.7, 3.7, 0), Vector(10.9, 3.7, 0)), False)
sketch8.addGeometry(Part.LineSegment(Vector(-8.7, 3.7, 0), Vector(-8.7, -3.9, 0)), False)
sketch8.addGeometry(Part.LineSegment(Vector(-8.7, -3.9, 0), Vector(-10.9, -3.9, 0)), False)
sketch8.addGeometry(Part.LineSegment(Vector(-10.9, -3.9, 0), Vector(-10.9, 3.7, 0)), False)
sketch8.addGeometry(Part.LineSegment(Vector(-10.9, 3.7, 0), Vector(-8.7, 3.7, 0)), False)
sketch8.addConstraint(Sketcher.Constraint("Coincident", 0, 2, 1, 1))
sketch8.addConstraint(Sketcher.Constraint("Coincident", 1, 2, 2, 1))
sketch8.addConstraint(Sketcher.Constraint("Coincident", 2, 2, 3, 1))
sketch8.addConstraint(Sketcher.Constraint("Coincident", 3, 2, 0, 1))
sketch8.addConstraint(Sketcher.Constraint("Coincident", 4, 2, 5, 1))
sketch8.addConstraint(Sketcher.Constraint("Coincident", 5, 2, 6, 1))
sketch8.addConstraint(Sketcher.Constraint("Coincident", 6, 2, 7, 1))
sketch8.addConstraint(Sketcher.Constraint("Coincident", 7, 2, 4, 1))
sketch8.addConstraint(Sketcher.Constraint("Vertical", 0))
sketch8.addConstraint(Sketcher.Constraint("Horizontal", 1))
sketch8.addConstraint(Sketcher.Constraint("Vertical", 2))
sketch8.addConstraint(Sketcher.Constraint("Horizontal", 3))
sketch8.addConstraint(Sketcher.Constraint("Vertical", 4))
sketch8.addConstraint(Sketcher.Constraint("Horizontal", 5))
sketch8.addConstraint(Sketcher.Constraint("Vertical", 6))
sketch8.addConstraint(Sketcher.Constraint("Horizontal", 7))
sketch8.addConstraint(Sketcher.Constraint("Symmetric", 1, 2, 4, 2, -2))
sketch8.addConstraint(Sketcher.Constraint("Symmetric", 3, 2, 6, 2, -2))
sketch8.addConstraint(Sketcher.Constraint("DistanceY", 0, 2, 0, 1, Q("7.6 mm")))
sketch8.addConstraint(Sketcher.Constraint("DistanceX", 1, 2, 1, 1, Q("2.25 mm")))
sketch8.addConstraint(Sketcher.Constraint("DistanceY", 0, 2, -1, 1, Q("3.9 mm")))
sketch8.addConstraint(Sketcher.Constraint("DistanceX", -1, 1, 1, 2, Q("8.7 mm")))
sketch8.setExpression("Constraints[18]", "Params.sketch8_height")
sketch8.setExpression("Constraints[19]", "Params.sketch8_width")
pocket5 = body.newObject("PartDesign::Pocket", "Pocket004")
pocket5.Profile = sketch8
pocket5.setExpression("Length", "Params.pocket5_length")
pocket5.Reversed = True
doc.recompute()

fillet = body.newObject("PartDesign::Fillet", "Fillet")
fillet.Base = (pocket5, edges_at(pocket5, [
    (-15, 4.6, -2.1),
    (15, 4.6, -2.1),
    (15, -3.9, -2.1),
    (-15, -3.9, -2.1),
]))
fillet.setExpression("Radius", "Params.fillet_radius")
doc.recompute()

chamfer = body.newObject("PartDesign::Chamfer", "Chamfer")
chamfer.Base = (fillet, edges_at(fillet, [
    (-2, 0, 7),
    (-1.275, -0.65, 7),
    (-0.55, -1.325, 7),
    (0, -2, 7),
    (0.55, -1.325, 7),
    (1.275, -0.65, 7),
    (-0.55, 1.325, 7),
    (2, 0, 7),
    (1.275, 0.65, 7),
    (0.55, 1.325, 7),
    (0, 2, 7),
    (-1.275, 0.65, 7),
]))
chamfer.setExpression("Size", "Params.chamfer_size")

doc.recompute()
